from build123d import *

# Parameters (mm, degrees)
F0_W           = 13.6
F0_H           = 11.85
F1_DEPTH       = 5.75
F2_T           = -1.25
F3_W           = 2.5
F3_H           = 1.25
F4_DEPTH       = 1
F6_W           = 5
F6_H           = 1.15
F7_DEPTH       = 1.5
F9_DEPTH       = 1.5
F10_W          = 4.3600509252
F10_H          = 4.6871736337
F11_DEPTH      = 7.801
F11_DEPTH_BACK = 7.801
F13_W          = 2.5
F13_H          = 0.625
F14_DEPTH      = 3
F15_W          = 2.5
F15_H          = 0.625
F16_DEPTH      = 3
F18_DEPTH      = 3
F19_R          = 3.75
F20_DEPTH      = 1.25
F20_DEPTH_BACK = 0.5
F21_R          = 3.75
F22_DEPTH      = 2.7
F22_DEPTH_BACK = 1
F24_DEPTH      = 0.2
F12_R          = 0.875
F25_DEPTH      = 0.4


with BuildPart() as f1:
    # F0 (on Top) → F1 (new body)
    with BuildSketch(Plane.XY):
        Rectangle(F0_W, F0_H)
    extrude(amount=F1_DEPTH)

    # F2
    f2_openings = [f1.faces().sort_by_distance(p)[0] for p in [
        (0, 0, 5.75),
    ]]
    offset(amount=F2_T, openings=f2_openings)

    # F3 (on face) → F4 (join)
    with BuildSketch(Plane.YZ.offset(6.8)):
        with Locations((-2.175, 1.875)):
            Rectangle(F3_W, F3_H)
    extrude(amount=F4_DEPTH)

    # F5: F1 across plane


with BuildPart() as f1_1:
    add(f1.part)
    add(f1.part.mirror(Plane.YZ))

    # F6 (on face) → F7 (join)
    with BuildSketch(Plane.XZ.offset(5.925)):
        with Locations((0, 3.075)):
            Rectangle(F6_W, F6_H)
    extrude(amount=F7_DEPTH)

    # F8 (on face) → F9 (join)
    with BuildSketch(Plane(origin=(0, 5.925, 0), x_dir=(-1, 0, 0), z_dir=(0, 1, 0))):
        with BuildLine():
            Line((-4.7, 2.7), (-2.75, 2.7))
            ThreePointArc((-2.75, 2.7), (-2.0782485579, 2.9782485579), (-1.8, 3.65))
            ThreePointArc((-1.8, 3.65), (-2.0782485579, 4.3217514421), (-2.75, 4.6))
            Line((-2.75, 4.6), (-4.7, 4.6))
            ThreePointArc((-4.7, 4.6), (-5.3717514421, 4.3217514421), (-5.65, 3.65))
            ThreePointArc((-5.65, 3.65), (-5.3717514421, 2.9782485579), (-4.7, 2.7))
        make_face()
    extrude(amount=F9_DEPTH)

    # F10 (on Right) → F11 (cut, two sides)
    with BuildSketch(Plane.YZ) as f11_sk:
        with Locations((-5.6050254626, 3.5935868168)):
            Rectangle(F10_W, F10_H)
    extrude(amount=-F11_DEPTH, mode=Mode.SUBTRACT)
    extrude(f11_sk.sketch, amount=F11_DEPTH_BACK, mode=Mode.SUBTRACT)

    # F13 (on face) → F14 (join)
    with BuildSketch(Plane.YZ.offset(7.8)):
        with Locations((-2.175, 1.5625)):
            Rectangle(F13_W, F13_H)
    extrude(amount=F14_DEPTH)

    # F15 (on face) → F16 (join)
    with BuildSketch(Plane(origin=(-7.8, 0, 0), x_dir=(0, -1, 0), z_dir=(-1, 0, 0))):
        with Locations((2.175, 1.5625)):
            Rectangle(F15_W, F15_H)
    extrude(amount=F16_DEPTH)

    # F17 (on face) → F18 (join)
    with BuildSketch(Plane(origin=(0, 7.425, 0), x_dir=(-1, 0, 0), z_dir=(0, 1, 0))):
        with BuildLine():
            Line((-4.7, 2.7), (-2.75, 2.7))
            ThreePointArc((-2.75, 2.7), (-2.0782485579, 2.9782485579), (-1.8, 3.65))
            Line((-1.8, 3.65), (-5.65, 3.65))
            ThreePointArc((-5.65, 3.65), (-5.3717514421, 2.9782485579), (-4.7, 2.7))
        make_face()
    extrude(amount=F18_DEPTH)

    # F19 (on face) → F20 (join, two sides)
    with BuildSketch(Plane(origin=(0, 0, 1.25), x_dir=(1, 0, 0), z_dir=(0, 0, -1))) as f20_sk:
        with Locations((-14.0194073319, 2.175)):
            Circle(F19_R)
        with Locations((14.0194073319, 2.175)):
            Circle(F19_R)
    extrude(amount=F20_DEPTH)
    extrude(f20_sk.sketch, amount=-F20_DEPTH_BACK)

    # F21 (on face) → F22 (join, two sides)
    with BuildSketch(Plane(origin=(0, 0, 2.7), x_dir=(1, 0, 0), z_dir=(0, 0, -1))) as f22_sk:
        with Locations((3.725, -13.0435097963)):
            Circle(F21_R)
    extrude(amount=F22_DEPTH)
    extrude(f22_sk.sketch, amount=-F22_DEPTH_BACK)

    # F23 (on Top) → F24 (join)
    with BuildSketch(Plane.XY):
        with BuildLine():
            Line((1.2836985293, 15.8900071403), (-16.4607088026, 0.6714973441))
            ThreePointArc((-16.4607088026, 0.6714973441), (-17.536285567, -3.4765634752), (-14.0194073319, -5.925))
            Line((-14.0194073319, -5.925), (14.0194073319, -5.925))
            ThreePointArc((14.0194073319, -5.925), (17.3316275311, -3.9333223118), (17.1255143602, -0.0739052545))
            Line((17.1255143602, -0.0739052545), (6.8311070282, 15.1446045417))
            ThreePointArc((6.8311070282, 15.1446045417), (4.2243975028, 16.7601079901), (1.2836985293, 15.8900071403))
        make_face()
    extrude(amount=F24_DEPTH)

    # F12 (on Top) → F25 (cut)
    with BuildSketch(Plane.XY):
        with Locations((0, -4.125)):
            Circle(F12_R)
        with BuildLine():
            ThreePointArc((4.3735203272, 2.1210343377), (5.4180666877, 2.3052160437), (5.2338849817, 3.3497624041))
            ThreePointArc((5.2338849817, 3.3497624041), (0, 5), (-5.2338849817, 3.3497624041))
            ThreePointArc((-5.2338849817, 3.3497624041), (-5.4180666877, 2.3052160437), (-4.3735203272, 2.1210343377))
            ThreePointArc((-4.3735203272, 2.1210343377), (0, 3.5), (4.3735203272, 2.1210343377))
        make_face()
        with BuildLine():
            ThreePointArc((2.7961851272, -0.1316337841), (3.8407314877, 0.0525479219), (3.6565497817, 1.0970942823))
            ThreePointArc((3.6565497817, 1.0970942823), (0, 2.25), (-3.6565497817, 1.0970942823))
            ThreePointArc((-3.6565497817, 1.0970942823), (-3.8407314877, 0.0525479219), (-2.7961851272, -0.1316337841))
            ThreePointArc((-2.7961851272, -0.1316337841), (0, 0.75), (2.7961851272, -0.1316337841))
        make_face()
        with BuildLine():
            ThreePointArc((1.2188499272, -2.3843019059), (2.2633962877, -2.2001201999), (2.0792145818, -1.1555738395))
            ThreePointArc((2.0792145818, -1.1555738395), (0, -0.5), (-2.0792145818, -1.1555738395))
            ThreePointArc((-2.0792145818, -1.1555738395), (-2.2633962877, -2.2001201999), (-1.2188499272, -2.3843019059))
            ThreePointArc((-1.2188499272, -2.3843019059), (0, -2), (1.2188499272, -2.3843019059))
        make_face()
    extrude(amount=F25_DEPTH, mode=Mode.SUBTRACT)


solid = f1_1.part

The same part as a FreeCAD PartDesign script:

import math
import FreeCAD as App
import Part
import Sketcher

V = App.Vector
Q = App.Units.Quantity


def faces_at(feature, points):
    """Names of the faces that lie closest to the given points."""
    faces = feature.Shape.Faces
    near = lambda p: min(range(len(faces)), key=lambda i: faces[i].distToShape(Part.Vertex(*p))[0])
    return sorted({f"Face{near(p) + 1}" for p in points})


def add_polygon(sketch, points):
    """Adds a closed chain of lines whose ends are joined by coincident constraints."""
    first, n = sketch.GeometryCount, len(points)
    for a, b in zip(points, points[1:] + points[:1]):
        sketch.addGeometry(Part.LineSegment(App.Vector(*a, 0), App.Vector(*b, 0)), False)
    for i in range(n):
        sketch.addConstraint(Sketcher.Constraint("Coincident", first + i, 2, first + (i + 1) % n, 1))

doc = App.newDocument("Part")
body = doc.addObject("PartDesign::Body", "Body")

# Sketch on XY plane
sketch1 = body.newObject("Sketcher::SketchObject", "Sketch")
sketch1.AttachmentSupport = (doc.getObject("XY_Plane"), [""])
sketch1.MapMode = "FlatFace"
add_polygon(sketch1, [(-7, 6), (-7, -6), (7, -6), (7, 6)])  # lines 0-3
sketch1.addConstraint(Sketcher.Constraint("Vertical", 0))
sketch1.addConstraint(Sketcher.Constraint("Horizontal", 1))
sketch1.addConstraint(Sketcher.Constraint("Vertical", 2))
sketch1.addConstraint(Sketcher.Constraint("Horizontal", 3))
sketch1.addConstraint(Sketcher.Constraint("Symmetric", 0, 2, 2, 2, -1, 1))
sketch1.addConstraint(Sketcher.Constraint("DistanceX", 1, 1, 1, 2, Q("13.6 mm")))
sketch1.addConstraint(Sketcher.Constraint("DistanceY", 0, 2, 0, 1, Q("11.85 mm")))
pad1 = body.newObject("PartDesign::Pad", "Pad")
pad1.Profile = sketch1
pad1.Length = 5.75
doc.recompute()

thickness = body.newObject("PartDesign::Thickness", "Thickness")
thickness.Base = (pad1, faces_at(pad1, [(0, 0, 5.75)]))
thickness.Value = 1.25
thickness.Reversed = True
thickness.Join = "Arc"

# Sketch on YZ plane
sketch2 = body.newObject("Sketcher::SketchObject", "Sketch001")
sketch2.AttachmentSupport = (doc.getObject("YZ_Plane"), [""])
sketch2.MapMode = "FlatFace"
sketch2.AttachmentOffset = App.Placement(V(0, 0, 6.8), App.Rotation())
add_polygon(sketch2, [(-3.4, 2.5), (-3.4, 1.2), (-0.9, 1.2), (-0.9, 2.5)])  # lines 0-3
sketch2.addConstraint(Sketcher.Constraint("Vertical", 0))
sketch2.addConstraint(Sketcher.Constraint("Horizontal", 1))
sketch2.addConstraint(Sketcher.Constraint("Vertical", 2))
sketch2.addConstraint(Sketcher.Constraint("Horizontal", 3))
sketch2.addConstraint(Sketcher.Constraint("DistanceX", 1, 1, 1, 2, Q("2.5 mm")))
sketch2.addConstraint(Sketcher.Constraint("DistanceY", 0, 2, 0, 1, Q("1.25 mm")))
sketch2.addConstraint(Sketcher.Constraint("DistanceY", -1, 1, 2, 2, Q("2.5 mm")))
sketch2.addConstraint(Sketcher.Constraint("DistanceX", 0, 2, -1, 1, Q("3.425 mm")))
pad2 = body.newObject("PartDesign::Pad", "Pad001")
pad2.Profile = sketch2
pad2.Length = 1
body2 = doc.addObject("PartDesign::Body", "Body001")
doc.recompute()

body2.BaseFeature = body
doc.recompute()

mirroring = doc.addObject("Part::Mirroring", "Mirroring")
mirroring.Source = body
mirroring.Base = V(0, 0, 0)
mirroring.Normal = V(1, 0, 0)
body3 = doc.addObject("PartDesign::Body", "Body002")
body3.BaseFeature = mirroring
boolean = body2.newObject("PartDesign::Boolean", "Boolean")
boolean.Type = "Fuse"
boolean.addObjects([body3])
doc.recompute()

# Sketch on XZ plane
sketch3 = body2.newObject("Sketcher::SketchObject", "Sketch002")
sketch3.AttachmentSupport = (doc.getObject("XZ_Plane001"), [""])
sketch3.MapMode = "FlatFace"
sketch3.AttachmentOffset = App.Placement(V(0, 0, 5.925), App.Rotation())
add_polygon(sketch3, [(-2.5, 3.6), (-2.5, 2.5), (2.5, 2.5), (2.5, 3.6)])  # lines 0-3
sketch3.addConstraint(Sketcher.Constraint("Vertical", 0))
sketch3.addConstraint(Sketcher.Constraint("Horizontal", 1))
sketch3.addConstraint(Sketcher.Constraint("Vertical", 2))
sketch3.addConstraint(Sketcher.Constraint("Horizontal", 3))
sketch3.addConstraint(Sketcher.Constraint("DistanceX", 1, 1, 1, 2, Q("5 mm")))
sketch3.addConstraint(Sketcher.Constraint("DistanceY", 0, 2, 0, 1, Q("1.15 mm")))
sketch3.addConstraint(Sketcher.Constraint("DistanceX", 0, 2, -1, 1, Q("2.5 mm")))
sketch3.addConstraint(Sketcher.Constraint("DistanceY", -1, 1, 0, 2, Q("2.5 mm")))
pad3 = body2.newObject("PartDesign::Pad", "Pad002")
pad3.Profile = sketch3
pad3.Length = 1.5

# Sketch on XZ plane
sketch4 = body2.newObject("Sketcher::SketchObject", "Sketch003")
sketch4.AttachmentSupport = (doc.getObject("XZ_Plane001"), [""])
sketch4.MapMode = "FlatFace"
sketch4.AttachmentOffset = App.Placement(V(0, 0, -5.925), App.Rotation())
sketch4.addGeometry(Part.LineSegment(V(4.7, 2.7, 0), V(2.8, 2.7, 0)), False)
sketch4.addGeometry(Part.ArcOfCircle(Part.Circle(V(2.8, 3.6, 0), V(0, 0, 1), 0.9), math.radians(180), math.radians(270)), False)
sketch4.addGeometry(Part.ArcOfCircle(Part.Circle(V(2.8, 3.6, 0), V(0, 0, 1), 0.9), math.radians(90), math.radians(180)), False)
sketch4.addGeometry(Part.LineSegment(V(2.8, 4.6, 0), V(4.7, 4.6, 0)), False)
sketch4.addGeometry(Part.ArcOfCircle(Part.Circle(V(4.7, 3.6, 0), V(0, 0, 1), 0.9), math.radians(0), math.radians(90)), False)
sketch4.addGeometry(Part.ArcOfCircle(Part.Circle(V(4.7, 3.6, 0), V(0, 0, 1), 0.9), math.radians(-90), math.radians(0)), False)
sketch4.addConstraint(Sketcher.Constraint("Tangent", 0, 2, 1, 2))
sketch4.addConstraint(Sketcher.Constraint("Tangent", 1, 1, 2, 2))
sketch4.addConstraint(Sketcher.Constraint("Tangent", 2, 1, 3, 1))
sketch4.addConstraint(Sketcher.Constraint("Tangent", 3, 2, 4, 2))
sketch4.addConstraint(Sketcher.Constraint("Tangent", 4, 1, 5, 2))
sketch4.addConstraint(Sketcher.Constraint("Tangent", 5, 1, 0, 1))
sketch4.addConstraint(Sketcher.Constraint("Horizontal", 0))
sketch4.addConstraint(Sketcher.Constraint("Horizontal", 3))
sketch4.addConstraint(Sketcher.Constraint("Equal", 1, 2))
sketch4.addConstraint(Sketcher.Constraint("Equal", 2, 4))
sketch4.addConstraint(Sketcher.Constraint("Horizontal", 5, 3, 1, 1))
sketch4.addConstraint(Sketcher.Constraint("Horizontal", 1, 1, 4, 1))
sketch4.addConstraint(Sketcher.Constraint("Radius", 1, Q("0.95 mm")))
sketch4.addConstraint(Sketcher.Constraint("DistanceX", 0, 2, 0, 1, Q("1.95 mm")))
sketch4.addConstraint(Sketcher.Constraint("DistanceX", -1, 1, 4, 3, Q("4.7 mm")))
sketch4.addConstraint(Sketcher.Constraint("DistanceY", -1, 1, 0, 2, Q("2.7 mm")))
pad4 = body2.newObject("PartDesign::Pad", "Pad003")
pad4.Profile = sketch4
pad4.Length = 1.5
pad4.Reversed = True

# Sketch on YZ plane
sketch5 = body2.newObject("Sketcher::SketchObject", "Sketch004")
sketch5.AttachmentSupport = (doc.getObject("YZ_Plane001"), [""])
sketch5.MapMode = "FlatFace"
add_polygon(sketch5, [(-7.8, 5.9), (-7.8, 1.2), (-3.4, 1.2), (-3.4, 5.9)])  # lines 0-3
sketch5.addConstraint(Sketcher.Constraint("Vertical", 0))
sketch5.addConstraint(Sketcher.Constraint("Horizontal", 1))
sketch5.addConstraint(Sketcher.Constraint("Vertical", 2))
sketch5.addConstraint(Sketcher.Constraint("Horizontal", 3))
sketch5.addConstraint(Sketcher.Constraint("DistanceY", -1, 1, 0, 2, Q("1.25 mm")))
sketch5.addConstraint(Sketcher.Constraint("DistanceX", 1, 2, -1, 1, Q("3.425 mm")))
sketch5.addConstraint(Sketcher.Constraint("DistanceX", 1, 1, 1, 2, Q("4.360051 mm")))
sketch5.addConstraint(Sketcher.Constraint("DistanceY", 0, 2, 0, 1, Q("4.687174 mm")))
pocket1 = body2.newObject("PartDesign::Pocket", "Pocket")
pocket1.Profile = sketch5
pocket1.Type = "ThroughAll"
pocket1.Midplane = True

# Sketch on YZ plane
sketch6 = body2.newObject("Sketcher::SketchObject", "Sketch005")
sketch6.AttachmentSupport = (doc.getObject("YZ_Plane001"), [""])
sketch6.MapMode = "FlatFace"
sketch6.AttachmentOffset = App.Placement(V(0, 0, 7.8), App.Rotation())
add_polygon(sketch6, [(-3.4, 1.9), (-3.4, 1.2), (-0.9, 1.2), (-0.9, 1.9)])  # lines 0-3
sketch6.addConstraint(Sketcher.Constraint("Vertical", 0))
sketch6.addConstraint(Sketcher.Constraint("Horizontal", 1))
sketch6.addConstraint(Sketcher.Constraint("Vertical", 2))
sketch6.addConstraint(Sketcher.Constraint("Horizontal", 3))
sketch6.addConstraint(Sketcher.Constraint("DistanceX", 1, 1, 1, 2, Q("2.5 mm")))
sketch6.addConstraint(Sketcher.Constraint("DistanceY", 0, 2, 0, 1, Q("0.625 mm")))
sketch6.addConstraint(Sketcher.Constraint("DistanceY", -1, 1, 0, 2, Q("1.25 mm")))
sketch6.addConstraint(Sketcher.Constraint("DistanceX", 0, 2, -1, 1, Q("3.425 mm")))
pad5 = body2.newObject("PartDesign::Pad", "Pad004")
pad5.Profile = sketch6
pad5.Length = 3

# Sketch on YZ plane
sketch7 = body2.newObject("Sketcher::SketchObject", "Sketch006")
sketch7.AttachmentSupport = (doc.getObject("YZ_Plane001"), [""])
sketch7.MapMode = "FlatFace"
sketch7.AttachmentOffset = App.Placement(V(0, 0, -7.8), App.Rotation())
add_polygon(sketch7, [(-0.9, 1.9), (-0.9, 1.2), (-3.4, 1.2), (-3.4, 1.9)])  # lines 0-3
sketch7.addConstraint(Sketcher.Constraint("Vertical", 0))
sketch7.addConstraint(Sketcher.Constraint("Horizontal", 1))
sketch7.addConstraint(Sketcher.Constraint("Vertical", 2))
sketch7.addConstraint(Sketcher.Constraint("Horizontal", 3))
sketch7.addConstraint(Sketcher.Constraint("DistanceX", 1, 2, 1, 1, Q("2.5 mm")))
sketch7.addConstraint(Sketcher.Constraint("DistanceY", 0, 2, 0, 1, Q("0.625 mm")))
sketch7.addConstraint(Sketcher.Constraint("DistanceY", -1, 1, 0, 2, Q("1.25 mm")))
sketch7.addConstraint(Sketcher.Constraint("DistanceX", 0, 2, -1, 1, Q("0.925 mm")))
pad6 = body2.newObject("PartDesign::Pad", "Pad005")
pad6.Profile = sketch7
pad6.Length = 3
pad6.Reversed = True

# Sketch on XZ plane
sketch8 = body2.newObject("Sketcher::SketchObject", "Sketch007")
sketch8.AttachmentSupport = (doc.getObject("XZ_Plane001"), [""])
sketch8.MapMode = "FlatFace"
sketch8.AttachmentOffset = App.Placement(V(0, 0, -7.425), App.Rotation())
sketch8.addGeometry(Part.LineSegment(V(4.7, 2.7, 0), V(2.8, 2.7, 0)), False)
sketch8.addGeometry(Part.ArcOfCircle(Part.Circle(V(2.8, 3.6, 0), V(0, 0, 1), 0.9), math.radians(180), math.radians(270)), False)
sketch8.addGeometry(Part.LineSegment(V(1.8, 3.6, 0), V(5.7, 3.6, 0)), False)
sketch8.addGeometry(Part.ArcOfCircle(Part.Circle(V(4.7, 3.6, 0), V(0, 0, 1), 0.9), math.radians(-90), math.radians(0)), False)
sketch8.addConstraint(Sketcher.Constraint("Tangent", 0, 2, 1, 2))
sketch8.addConstraint(Sketcher.Constraint("Coincident", 1, 1, 2, 1))
sketch8.addConstraint(Sketcher.Constraint("Coincident", 2, 2, 3, 2))
sketch8.addConstraint(Sketcher.Constraint("Tangent", 3, 1, 0, 1))
sketch8.addConstraint(Sketcher.Constraint("Horizontal", 0))
sketch8.addConstraint(Sketcher.Constraint("Horizontal", 2))
sketch8.addConstraint(Sketcher.Constraint("Equal", 1, 3))
sketch8.addConstraint(Sketcher.Constraint("Horizontal", 3, 3, 1, 1))
sketch8.addConstraint(Sketcher.Constraint("Radius", 1, Q("0.95 mm")))
sketch8.addConstraint(Sketcher.Constraint("DistanceX", 0, 2, 0, 1, Q("1.95 mm")))
sketch8.addConstraint(Sketcher.Constraint("DistanceX", -1, 1, 3, 3, Q("4.7 mm")))
sketch8.addConstraint(Sketcher.Constraint("DistanceY", -1, 1, 0, 2, Q("2.7 mm")))
pad7 = body2.newObject("PartDesign::Pad", "Pad006")
pad7.Profile = sketch8
pad7.Length = 3
pad7.Reversed = True

# Sketch on XY plane
sketch9 = body2.newObject("Sketcher::SketchObject", "Sketch008")
sketch9.AttachmentSupport = (doc.getObject("XY_Plane001"), [""])
sketch9.MapMode = "FlatFace"
sketch9.AttachmentOffset = App.Placement(V(0, 0, 1.25), App.Rotation())
sketch9.addGeometry(Part.Circle(V(-14, -2.2, 0), V(0, 0, 1), 3.8), False)
sketch9.addGeometry(Part.Circle(V(14, -2.2, 0), V(0, 0, 1), 3.8), False)
sketch9.addConstraint(Sketcher.Constraint("Equal", 0, 1))
sketch9.addConstraint(Sketcher.Constraint("Symmetric", 0, 3, 1, 3, -2))
sketch9.addConstraint(Sketcher.Constraint("Diameter", 0, Q("7.5 mm")))
sketch9.addConstraint(Sketcher.Constraint("DistanceY", 0, 3, -1, 1, Q("2.175 mm")))
sketch9.addConstraint(Sketcher.Constraint("DistanceX", 0, 3, -1, 1, Q("14.019407 mm")))
pad8 = body2.newObject("PartDesign::Pad", "Pad007")
pad8.Profile = sketch9
pad8.Type = "TwoLengths"
pad8.Length = 1.25
pad8.Length2 = 0.5
pad8.Reversed = True

# Sketch on XY plane
sketch10 = body2.newObject("Sketcher::SketchObject", "Sketch009")
sketch10.AttachmentSupport = (doc.getObject("XY_Plane001"), [""])
sketch10.MapMode = "FlatFace"
sketch10.AttachmentOffset = App.Placement(V(0, 0, 2.7), App.Rotation())
sketch10.addGeometry(Part.Circle(V(3.7, 13, 0), V(0, 0, 1), 3.8), False)
sketch10.addConstraint(Sketcher.Constraint("Diameter", 0, Q("7.5 mm")))
sketch10.addConstraint(Sketcher.Constraint("DistanceX", -1, 1, 0, 3, Q("3.725 mm")))
sketch10.addConstraint(Sketcher.Constraint("DistanceY", -1, 1, 0, 3, Q("13.04351 mm")))
pad9 = body2.newObject("PartDesign::Pad", "Pad008")
pad9.Profile = sketch10
pad9.Type = "TwoLengths"
pad9.Length = 2.7
pad9.Length2 = 1
pad9.Reversed = True

# Sketch on XY plane
sketch11 = body2.newObject("Sketcher::SketchObject", "Sketch010")
sketch11.AttachmentSupport = (doc.getObject("XY_Plane001"), [""])
sketch11.MapMode = "FlatFace"
sketch11.addGeometry(Part.LineSegment(V(1.3, 15.9, 0), V(-16.5, 0.7, 0)), False)
sketch11.addGeometry(Part.ArcOfCircle(Part.Circle(V(-14, -2.2, 0), V(0, 0, 1), 3.8), math.radians(131), math.radians(270)), False)
sketch11.addGeometry(Part.LineSegment(V(-14, -5.9, 0), V(14, -5.9, 0)), False)
sketch11.addGeometry(Part.ArcOfCircle(Part.Circle(V(14, -2.2, 0), V(0, 0, 1), 3.8), math.radians(-90), math.radians(34)), False)
sketch11.addGeometry(Part.LineSegment(V(17.1, -0.1, 0), V(6.8, 15.1, 0)), False)
sketch11.addGeometry(Part.ArcOfCircle(Part.Circle(V(3.7, 13, 0), V(0, 0, 1), 3.8), math.radians(34), math.radians(131)), False)
sketch11.addConstraint(Sketcher.Constraint("Tangent", 0, 2, 1, 1))
sketch11.addConstraint(Sketcher.Constraint("Tangent", 1, 2, 2, 1))
sketch11.addConstraint(Sketcher.Constraint("Tangent", 2, 2, 3, 1))
sketch11.addConstraint(Sketcher.Constraint("Tangent", 3, 2, 4, 1))
sketch11.addConstraint(Sketcher.Constraint("Tangent", 4, 2, 5, 1))
sketch11.addConstraint(Sketcher.Constraint("Tangent", 5, 2, 0, 1))
sketch11.addConstraint(Sketcher.Constraint("Horizontal", 2))
sketch11.addConstraint(Sketcher.Constraint("Equal", 1, 3))
sketch11.addConstraint(Sketcher.Constraint("Equal", 3, 5))
sketch11.addConstraint(Sketcher.Constraint("Radius", 1, Q("3.75 mm")))
sketch11.addConstraint(Sketcher.Constraint("DistanceY", 1, 3, -1, 1, Q("2.175 mm")))
sketch11.addConstraint(Sketcher.Constraint("DistanceX", -1, 1, 5, 3, Q("3.725 mm")))
sketch11.addConstraint(Sketcher.Constraint("DistanceX", -1, 1, 5, 2, Q("1.283699 mm")))
sketch11.addConstraint(Sketcher.Constraint("DistanceX", 4, 2, 3, 3, Q("7.1883 mm")))
sketch11.addConstraint(Sketcher.Constraint("DistanceX", 2, 1, 2, 2, Q("28.038815 mm")))
pad10 = body2.newObject("PartDesign::Pad", "Pad009")
pad10.Profile = sketch11
pad10.Length = 0.2

# Sketch on XY plane
sketch12 = body2.newObject("Sketcher::SketchObject", "Sketch011")
sketch12.AttachmentSupport = (doc.getObject("XY_Plane001"), [""])
sketch12.MapMode = "FlatFace"
sketch12.addGeometry(Part.Circle(V(0, -4.1, 0), V(0, 0, 1), 0.9), False)
sketch12.addGeometry(Part.ArcOfCircle(Part.Circle(V(4.8, 2.7, 0), V(0, 0, 1), 0.8), math.radians(-125), math.radians(55)), False)
sketch12.addGeometry(Part.ArcOfCircle(Part.Circle(V(0, -4.1, 0), V(0, 0, 1), 9.1), math.radians(55), math.radians(125)), False)
sketch12.addGeometry(Part.ArcOfCircle(Part.Circle(V(-4.8, 2.7, 0), V(0, 0, 1), 0.8), math.radians(125), math.radians(305)), False)
sketch12.addGeometry(Part.ArcOfCircle(Part.Circle(V(0, -4.1, 0), V(0, 0, 1), 7.6), math.radians(55), math.radians(125)), False)
sketch12.addGeometry(Part.ArcOfCircle(Part.Circle(V(3.2, 0.5, 0), V(0, 0, 1), 0.8), math.radians(-125), math.radians(55)), False)
sketch12.addGeometry(Part.ArcOfCircle(Part.Circle(V(0, -4.1, 0), V(0, 0, 1), 6.4), math.radians(55), math.radians(125)), False)
sketch12.addGeometry(Part.ArcOfCircle(Part.Circle(V(-3.2, 0.5, 0), V(0, 0, 1), 0.8), math.radians(125), math.radians(305)), False)
sketch12.addGeometry(Part.ArcOfCircle(Part.Circle(V(0, -4.1, 0), V(0, 0, 1), 4.9), math.radians(55), math.radians(125)), False)
sketch12.addGeometry(Part.ArcOfCircle(Part.Circle(V(1.6, -1.8, 0), V(0, 0, 1), 0.8), math.radians(-125), math.radians(55)), False)
sketch12.addGeometry(Part.ArcOfCircle(Part.Circle(V(0, -4.1, 0), V(0, 0, 1), 3.6), math.radians(55), math.radians(125)), False)
sketch12.addGeometry(Part.ArcOfCircle(Part.Circle(V(-1.6, -1.8, 0), V(0, 0, 1), 0.8), math.radians(125), math.radians(305)), False)
sketch12.addGeometry(Part.ArcOfCircle(Part.Circle(V(0, -4.1, 0), V(0, 0, 1), 2.1), math.radians(55), math.radians(125)), False)
sketch12.addConstraint(Sketcher.Constraint("Tangent", 1, 2, 2, 1))
sketch12.addConstraint(Sketcher.Constraint("Tangent", 2, 2, 3, 1))
sketch12.addConstraint(Sketcher.Constraint("Tangent", 3, 2, 4, 2))
sketch12.addConstraint(Sketcher.Constraint("Tangent", 4, 1, 1, 1))
sketch12.addConstraint(Sketcher.Constraint("Tangent", 5, 2, 6, 1))
sketch12.addConstraint(Sketcher.Constraint("Tangent", 6, 2, 7, 1))
sketch12.addConstraint(Sketcher.Constraint("Tangent", 7, 2, 8, 2))
sketch12.addConstraint(Sketcher.Constraint("Tangent", 8, 1, 5, 1))
sketch12.addConstraint(Sketcher.Constraint("Tangent", 9, 2, 10, 1))
sketch12.addConstraint(Sketcher.Constraint("Tangent", 10, 2, 11, 1))
sketch12.addConstraint(Sketcher.Constraint("Tangent", 11, 2, 12, 2))
sketch12.addConstraint(Sketcher.Constraint("Tangent", 12, 1, 9, 1))
sketch12.addConstraint(Sketcher.Constraint("Coincident", 2, 3, 0, 3))
sketch12.addConstraint(Sketcher.Constraint("Coincident", 4, 3, 0, 3))
sketch12.addConstraint(Sketcher.Constraint("Coincident", 6, 3, 0, 3))
sketch12.addConstraint(Sketcher.Constraint("Coincident", 8, 3, 0, 3))
sketch12.addConstraint(Sketcher.Constraint("Coincident", 10, 3, 0, 3))
sketch12.addConstraint(Sketcher.Constraint("Coincident", 12, 3, 0, 3))
sketch12.addConstraint(Sketcher.Constraint("Equal", 3, 5))
sketch12.addConstraint(Sketcher.Constraint("Equal", 7, 9))
sketch12.addConstraint(Sketcher.Constraint("Symmetric", 1, 3, 3, 3, -2))
sketch12.addConstraint(Sketcher.Constraint("Horizontal", 5, 3, 7, 3))
sketch12.addConstraint(Sketcher.Constraint("Horizontal", 9, 3, 11, 3))
sketch12.addConstraint(Sketcher.Constraint("Diameter", 0, Q("1.75 mm")))
sketch12.addConstraint(Sketcher.Constraint("Radius", 1, Q("0.75 mm")))
sketch12.addConstraint(Sketcher.Constraint("Radius", 2, Q("9.125 mm")))
sketch12.addConstraint(Sketcher.Constraint("Radius", 6, Q("6.375 mm")))
sketch12.addConstraint(Sketcher.Constraint("Radius", 10, Q("3.625 mm")))
sketch12.addConstraint(Sketcher.Constraint("DistanceY", 0, 3, -1, 1, Q("4.125 mm")))
sketch12.addConstraint(Sketcher.Constraint("DistanceY", -1, 1, 1, 3, Q("2.735398 mm")))
sketch12.addConstraint(Sketcher.Constraint("DistanceY", 11, 2, -1, 1, Q("2.384302 mm")))
sketch12.addConstraint(Sketcher.Constraint("DistanceY", -1, 1, 5, 3, Q("0.48273 mm")))
pocket2 = body2.newObject("PartDesign::Pocket", "Pocket001")
pocket2.Profile = sketch12
pocket2.Length = 0.4
pocket2.Reversed = True
mirroring.Visibility = False

doc.recompute()
